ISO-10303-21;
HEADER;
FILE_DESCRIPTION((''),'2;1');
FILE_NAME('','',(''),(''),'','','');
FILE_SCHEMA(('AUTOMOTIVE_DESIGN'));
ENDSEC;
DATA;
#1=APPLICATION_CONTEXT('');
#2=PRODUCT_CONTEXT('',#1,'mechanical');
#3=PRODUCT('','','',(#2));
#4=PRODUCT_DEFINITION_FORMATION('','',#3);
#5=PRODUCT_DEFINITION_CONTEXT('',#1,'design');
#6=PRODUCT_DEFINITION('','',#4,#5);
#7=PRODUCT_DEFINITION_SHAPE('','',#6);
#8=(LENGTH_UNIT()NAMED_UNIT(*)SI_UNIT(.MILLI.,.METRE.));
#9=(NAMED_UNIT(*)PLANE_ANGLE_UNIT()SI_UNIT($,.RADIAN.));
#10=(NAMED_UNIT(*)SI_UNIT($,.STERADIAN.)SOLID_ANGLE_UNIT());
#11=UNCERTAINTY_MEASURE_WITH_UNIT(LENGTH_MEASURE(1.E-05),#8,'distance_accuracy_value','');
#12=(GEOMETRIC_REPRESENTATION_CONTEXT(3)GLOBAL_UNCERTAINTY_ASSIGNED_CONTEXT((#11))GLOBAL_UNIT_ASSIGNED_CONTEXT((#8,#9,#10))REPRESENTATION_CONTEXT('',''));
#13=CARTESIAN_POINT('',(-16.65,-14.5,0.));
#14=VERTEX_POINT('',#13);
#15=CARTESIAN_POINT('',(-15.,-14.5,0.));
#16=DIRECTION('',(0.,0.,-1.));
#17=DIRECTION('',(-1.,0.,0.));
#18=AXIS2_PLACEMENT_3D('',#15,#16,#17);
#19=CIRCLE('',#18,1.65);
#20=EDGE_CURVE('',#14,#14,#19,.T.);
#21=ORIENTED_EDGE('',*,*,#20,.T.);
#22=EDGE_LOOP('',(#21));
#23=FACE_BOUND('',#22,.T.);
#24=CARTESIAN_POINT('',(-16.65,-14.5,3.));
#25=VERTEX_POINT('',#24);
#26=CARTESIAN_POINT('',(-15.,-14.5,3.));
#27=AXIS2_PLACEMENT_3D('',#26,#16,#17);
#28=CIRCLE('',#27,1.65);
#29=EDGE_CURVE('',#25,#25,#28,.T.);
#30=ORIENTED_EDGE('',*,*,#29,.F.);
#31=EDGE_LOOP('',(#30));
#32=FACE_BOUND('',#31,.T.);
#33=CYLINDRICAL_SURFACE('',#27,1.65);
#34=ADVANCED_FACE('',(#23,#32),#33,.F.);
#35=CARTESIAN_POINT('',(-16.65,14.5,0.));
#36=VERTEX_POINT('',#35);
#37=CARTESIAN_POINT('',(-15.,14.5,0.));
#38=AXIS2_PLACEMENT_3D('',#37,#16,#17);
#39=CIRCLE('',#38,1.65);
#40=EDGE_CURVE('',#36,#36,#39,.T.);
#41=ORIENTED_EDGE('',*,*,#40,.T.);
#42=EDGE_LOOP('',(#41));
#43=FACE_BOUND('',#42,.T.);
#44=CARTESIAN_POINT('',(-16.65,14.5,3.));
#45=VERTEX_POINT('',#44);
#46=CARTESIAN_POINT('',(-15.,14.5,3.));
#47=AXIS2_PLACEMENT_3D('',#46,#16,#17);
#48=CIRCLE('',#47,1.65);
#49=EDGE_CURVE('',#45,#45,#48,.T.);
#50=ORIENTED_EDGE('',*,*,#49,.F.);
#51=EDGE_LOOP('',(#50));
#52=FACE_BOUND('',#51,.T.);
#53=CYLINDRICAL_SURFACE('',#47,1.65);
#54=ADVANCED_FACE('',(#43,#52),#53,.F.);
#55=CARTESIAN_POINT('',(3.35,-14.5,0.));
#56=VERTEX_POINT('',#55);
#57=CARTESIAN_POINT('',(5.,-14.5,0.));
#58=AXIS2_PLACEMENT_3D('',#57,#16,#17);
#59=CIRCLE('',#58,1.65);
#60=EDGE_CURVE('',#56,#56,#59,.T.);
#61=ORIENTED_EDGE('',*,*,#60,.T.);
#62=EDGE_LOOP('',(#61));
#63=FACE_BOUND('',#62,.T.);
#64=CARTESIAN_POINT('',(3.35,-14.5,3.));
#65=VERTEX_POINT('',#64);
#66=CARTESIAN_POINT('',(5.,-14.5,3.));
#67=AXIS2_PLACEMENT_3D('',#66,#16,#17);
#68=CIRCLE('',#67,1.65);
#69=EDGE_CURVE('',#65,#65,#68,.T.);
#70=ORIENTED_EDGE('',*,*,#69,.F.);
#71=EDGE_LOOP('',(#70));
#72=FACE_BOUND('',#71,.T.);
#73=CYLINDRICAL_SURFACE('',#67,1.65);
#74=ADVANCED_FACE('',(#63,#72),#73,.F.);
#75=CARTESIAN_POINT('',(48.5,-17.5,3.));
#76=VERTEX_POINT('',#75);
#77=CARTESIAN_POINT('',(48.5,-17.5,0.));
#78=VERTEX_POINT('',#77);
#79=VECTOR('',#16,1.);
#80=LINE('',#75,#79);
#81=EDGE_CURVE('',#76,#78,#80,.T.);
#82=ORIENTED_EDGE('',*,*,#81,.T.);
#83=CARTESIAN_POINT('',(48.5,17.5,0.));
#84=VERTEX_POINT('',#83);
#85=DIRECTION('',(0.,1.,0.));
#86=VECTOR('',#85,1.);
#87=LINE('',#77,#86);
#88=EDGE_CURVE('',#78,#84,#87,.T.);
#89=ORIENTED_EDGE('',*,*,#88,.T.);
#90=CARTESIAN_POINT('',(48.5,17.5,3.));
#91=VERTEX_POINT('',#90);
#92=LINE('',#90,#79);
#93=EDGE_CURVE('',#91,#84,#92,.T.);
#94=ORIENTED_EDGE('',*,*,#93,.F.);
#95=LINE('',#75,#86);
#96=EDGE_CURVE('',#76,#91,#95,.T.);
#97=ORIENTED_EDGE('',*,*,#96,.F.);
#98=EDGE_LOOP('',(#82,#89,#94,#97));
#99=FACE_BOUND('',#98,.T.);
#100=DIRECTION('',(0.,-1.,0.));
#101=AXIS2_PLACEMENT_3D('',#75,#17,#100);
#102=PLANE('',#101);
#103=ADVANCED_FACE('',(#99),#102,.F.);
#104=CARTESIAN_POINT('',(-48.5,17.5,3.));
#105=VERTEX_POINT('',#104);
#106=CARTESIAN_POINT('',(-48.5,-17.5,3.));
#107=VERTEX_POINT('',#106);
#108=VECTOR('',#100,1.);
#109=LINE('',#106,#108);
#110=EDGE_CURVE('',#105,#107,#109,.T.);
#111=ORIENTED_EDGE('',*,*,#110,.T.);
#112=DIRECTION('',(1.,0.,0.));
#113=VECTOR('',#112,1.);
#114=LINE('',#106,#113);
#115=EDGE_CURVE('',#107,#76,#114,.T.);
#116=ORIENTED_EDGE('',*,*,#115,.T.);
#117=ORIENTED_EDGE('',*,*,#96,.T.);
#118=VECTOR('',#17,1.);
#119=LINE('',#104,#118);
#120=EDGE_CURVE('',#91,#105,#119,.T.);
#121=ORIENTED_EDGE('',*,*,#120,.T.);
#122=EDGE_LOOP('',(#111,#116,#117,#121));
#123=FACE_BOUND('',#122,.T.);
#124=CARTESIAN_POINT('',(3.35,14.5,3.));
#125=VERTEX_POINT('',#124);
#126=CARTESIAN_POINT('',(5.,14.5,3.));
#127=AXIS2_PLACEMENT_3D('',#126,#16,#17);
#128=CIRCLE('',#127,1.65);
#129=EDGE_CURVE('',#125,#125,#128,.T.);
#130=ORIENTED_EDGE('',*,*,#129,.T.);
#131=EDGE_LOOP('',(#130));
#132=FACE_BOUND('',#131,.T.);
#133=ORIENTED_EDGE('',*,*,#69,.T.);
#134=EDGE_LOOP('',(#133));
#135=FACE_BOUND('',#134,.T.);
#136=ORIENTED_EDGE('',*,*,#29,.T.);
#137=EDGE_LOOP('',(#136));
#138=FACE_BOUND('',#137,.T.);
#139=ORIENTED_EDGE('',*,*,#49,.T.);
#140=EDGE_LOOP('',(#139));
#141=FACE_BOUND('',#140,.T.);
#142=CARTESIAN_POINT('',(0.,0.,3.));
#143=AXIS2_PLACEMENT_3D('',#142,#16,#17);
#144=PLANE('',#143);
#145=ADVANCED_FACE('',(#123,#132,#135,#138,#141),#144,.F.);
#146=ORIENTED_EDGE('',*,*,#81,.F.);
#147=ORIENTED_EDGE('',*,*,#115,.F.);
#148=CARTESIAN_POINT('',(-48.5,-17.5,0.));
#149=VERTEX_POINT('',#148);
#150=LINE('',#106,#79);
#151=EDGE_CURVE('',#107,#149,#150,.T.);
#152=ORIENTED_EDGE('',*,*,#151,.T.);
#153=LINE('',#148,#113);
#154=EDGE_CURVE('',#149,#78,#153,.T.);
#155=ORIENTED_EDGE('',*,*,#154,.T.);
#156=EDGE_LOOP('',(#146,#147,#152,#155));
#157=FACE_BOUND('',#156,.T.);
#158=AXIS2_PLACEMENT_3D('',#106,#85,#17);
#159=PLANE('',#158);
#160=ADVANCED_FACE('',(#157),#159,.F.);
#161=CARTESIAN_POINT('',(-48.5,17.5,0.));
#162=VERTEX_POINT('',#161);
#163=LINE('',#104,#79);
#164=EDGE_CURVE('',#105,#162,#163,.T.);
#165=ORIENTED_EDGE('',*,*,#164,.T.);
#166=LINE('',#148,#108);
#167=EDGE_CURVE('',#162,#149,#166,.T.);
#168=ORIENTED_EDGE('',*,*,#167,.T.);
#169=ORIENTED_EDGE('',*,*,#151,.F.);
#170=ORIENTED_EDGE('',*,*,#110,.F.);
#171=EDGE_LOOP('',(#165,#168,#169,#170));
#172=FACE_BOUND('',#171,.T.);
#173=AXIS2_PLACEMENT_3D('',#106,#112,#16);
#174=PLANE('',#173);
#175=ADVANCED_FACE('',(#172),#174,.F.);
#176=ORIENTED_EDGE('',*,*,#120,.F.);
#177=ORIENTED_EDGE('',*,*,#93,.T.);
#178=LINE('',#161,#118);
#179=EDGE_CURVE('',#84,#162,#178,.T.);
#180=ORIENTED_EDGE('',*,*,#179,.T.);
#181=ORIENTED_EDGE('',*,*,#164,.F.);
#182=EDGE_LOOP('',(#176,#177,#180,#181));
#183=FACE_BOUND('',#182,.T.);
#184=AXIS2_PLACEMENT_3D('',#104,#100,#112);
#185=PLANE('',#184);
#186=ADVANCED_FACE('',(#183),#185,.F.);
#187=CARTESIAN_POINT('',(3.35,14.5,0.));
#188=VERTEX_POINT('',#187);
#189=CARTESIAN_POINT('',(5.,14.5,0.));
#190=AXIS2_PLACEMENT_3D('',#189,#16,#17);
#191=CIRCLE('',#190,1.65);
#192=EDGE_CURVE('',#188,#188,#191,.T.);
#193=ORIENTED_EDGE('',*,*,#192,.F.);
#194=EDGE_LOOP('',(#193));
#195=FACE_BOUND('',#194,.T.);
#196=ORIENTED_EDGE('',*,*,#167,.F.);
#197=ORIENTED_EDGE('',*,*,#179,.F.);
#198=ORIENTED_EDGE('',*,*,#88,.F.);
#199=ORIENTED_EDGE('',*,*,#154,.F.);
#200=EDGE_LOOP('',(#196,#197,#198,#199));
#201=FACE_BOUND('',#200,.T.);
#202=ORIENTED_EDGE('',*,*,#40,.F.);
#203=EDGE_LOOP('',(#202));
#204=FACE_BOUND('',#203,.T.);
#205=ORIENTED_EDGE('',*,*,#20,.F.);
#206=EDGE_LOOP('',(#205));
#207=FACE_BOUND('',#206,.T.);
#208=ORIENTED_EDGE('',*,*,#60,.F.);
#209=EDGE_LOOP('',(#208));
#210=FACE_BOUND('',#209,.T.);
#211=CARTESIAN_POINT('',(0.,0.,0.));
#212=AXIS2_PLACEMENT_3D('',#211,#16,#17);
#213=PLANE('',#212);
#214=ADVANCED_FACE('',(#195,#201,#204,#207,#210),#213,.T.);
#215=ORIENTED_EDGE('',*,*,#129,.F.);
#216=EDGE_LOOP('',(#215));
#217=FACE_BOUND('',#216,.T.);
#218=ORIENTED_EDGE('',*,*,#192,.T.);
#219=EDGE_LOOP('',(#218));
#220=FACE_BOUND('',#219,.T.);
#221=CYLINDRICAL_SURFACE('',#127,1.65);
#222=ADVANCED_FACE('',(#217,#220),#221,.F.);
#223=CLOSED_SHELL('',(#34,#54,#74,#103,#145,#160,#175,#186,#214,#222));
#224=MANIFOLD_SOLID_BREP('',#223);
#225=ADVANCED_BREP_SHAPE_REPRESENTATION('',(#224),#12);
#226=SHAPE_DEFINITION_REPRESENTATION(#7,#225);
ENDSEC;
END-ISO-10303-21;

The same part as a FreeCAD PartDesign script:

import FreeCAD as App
import Part
import Sketcher


def add_polygon(sketch, points):
    """Adds a closed chain of lines whose ends are joined by coincident constraints."""
    first, n = sketch.GeometryCount, len(points)
    for a, b in zip(points, points[1:] + points[:1]):
        sketch.addGeometry(Part.LineSegment(App.Vector(*a, 0), App.Vector(*b, 0)), False)
    for i in range(n):
        sketch.addConstraint(Sketcher.Constraint("Coincident", first + i, 2, first + (i + 1) % n, 1))

doc = App.newDocument("Part")
params = doc.addObject("Spreadsheet::Sheet", "Params")
for row, (alias, value) in enumerate([
    ("sketch1_width", "97 mm"),
    ("sketch1_height", "35 mm"),
    ("pad1_length", "3 mm"),
    ("sketch2_diameter", "3.3 mm"),
    ("pocket1_length", "3 mm"),
], start=1):
    params.set(f"A{row}", alias)
    params.set(f"B{row}", "=" + value)
    params.setAlias(f"B{row}", alias)

body = doc.addObject("PartDesign::Body", "Body")

sketch1 = doc.addObject("Sketcher::SketchObject", "Sketch")
body.addObject(sketch1)
sketch1.AttachmentSupport = (doc.XY_Plane, [""])
sketch1.MapMode = "FlatFace"
add_polygon(sketch1, [(-48, 18), (-48, -18), (48, -18), (48, 18)])
sketch1.addConstraint([
    Sketcher.Constraint("Vertical", 0),
    Sketcher.Constraint("Horizontal", 1),
    Sketcher.Constraint("Vertical", 2),
    Sketcher.Constraint("Horizontal", 3),
    Sketcher.Constraint("Symmetric", 0, 2, 2, 2, -1, 1),
    Sketcher.Constraint("DistanceX", 1, 1, 1, 2, 97.0),
    Sketcher.Constraint("DistanceY", 0, 2, 0, 1, 35.0),
])
sketch1.setExpression("Constraints[9]", "Params.sketch1_width")
sketch1.setExpression("Constraints[10]", "Params.sketch1_height")
pad1 = doc.addObject("PartDesign::Pad", "Pad")
body.addObject(pad1)
pad1.Profile = sketch1
pad1.setExpression("Length", "Params.pad1_length")

sketch2 = doc.addObject("Sketcher::SketchObject", "Sketch001")
body.addObject(sketch2)
sketch2.AttachmentSupport = (doc.XY_Plane, [""])
sketch2.MapMode = "FlatFace"
sketch2.addGeometry([
    Part.Circle(App.Vector(5, -14.5, 0), App.Vector(0, 0, 1), 1.6),
    Part.Circle(App.Vector(-15, -14.5, 0), App.Vector(0, 0, 1), 1.6),
    Part.Circle(App.Vector(5, 14.5, 0), App.Vector(0, 0, 1), 1.6),
    Part.Circle(App.Vector(-15, 14.5, 0), App.Vector(0, 0, 1), 1.6),
], False)
sketch2.addConstraint([
    Sketcher.Constraint("Equal", 0, 1),
    Sketcher.Constraint("Equal", 1, 2),
    Sketcher.Constraint("Equal", 2, 3),
    Sketcher.Constraint("Symmetric", 0, 3, 2, 3, -1),
    Sketcher.Constraint("Symmetric", 1, 3, 3, 3, -1),
    Sketcher.Constraint("Horizontal", 0, 3, 1, 3),
    Sketcher.Constraint("Diameter", 0, 3.3),
    Sketcher.Constraint("DistanceX", -1, 1, 0, 3, 5.0),
    Sketcher.Constraint("DistanceX", 1, 3, -1, 1, 15.0),
    Sketcher.Constraint("DistanceY", 0, 3, 2, 3, 29.0),
])
sketch2.setExpression("Constraints[6]", "Params.sketch2_diameter")
pocket1 = doc.addObject("PartDesign::Pocket", "Pocket")
body.addObject(pocket1)
pocket1.Profile = sketch2
pocket1.setExpression("Length", "Params.pocket1_length")
pocket1.Reversed = True

doc.recompute()
